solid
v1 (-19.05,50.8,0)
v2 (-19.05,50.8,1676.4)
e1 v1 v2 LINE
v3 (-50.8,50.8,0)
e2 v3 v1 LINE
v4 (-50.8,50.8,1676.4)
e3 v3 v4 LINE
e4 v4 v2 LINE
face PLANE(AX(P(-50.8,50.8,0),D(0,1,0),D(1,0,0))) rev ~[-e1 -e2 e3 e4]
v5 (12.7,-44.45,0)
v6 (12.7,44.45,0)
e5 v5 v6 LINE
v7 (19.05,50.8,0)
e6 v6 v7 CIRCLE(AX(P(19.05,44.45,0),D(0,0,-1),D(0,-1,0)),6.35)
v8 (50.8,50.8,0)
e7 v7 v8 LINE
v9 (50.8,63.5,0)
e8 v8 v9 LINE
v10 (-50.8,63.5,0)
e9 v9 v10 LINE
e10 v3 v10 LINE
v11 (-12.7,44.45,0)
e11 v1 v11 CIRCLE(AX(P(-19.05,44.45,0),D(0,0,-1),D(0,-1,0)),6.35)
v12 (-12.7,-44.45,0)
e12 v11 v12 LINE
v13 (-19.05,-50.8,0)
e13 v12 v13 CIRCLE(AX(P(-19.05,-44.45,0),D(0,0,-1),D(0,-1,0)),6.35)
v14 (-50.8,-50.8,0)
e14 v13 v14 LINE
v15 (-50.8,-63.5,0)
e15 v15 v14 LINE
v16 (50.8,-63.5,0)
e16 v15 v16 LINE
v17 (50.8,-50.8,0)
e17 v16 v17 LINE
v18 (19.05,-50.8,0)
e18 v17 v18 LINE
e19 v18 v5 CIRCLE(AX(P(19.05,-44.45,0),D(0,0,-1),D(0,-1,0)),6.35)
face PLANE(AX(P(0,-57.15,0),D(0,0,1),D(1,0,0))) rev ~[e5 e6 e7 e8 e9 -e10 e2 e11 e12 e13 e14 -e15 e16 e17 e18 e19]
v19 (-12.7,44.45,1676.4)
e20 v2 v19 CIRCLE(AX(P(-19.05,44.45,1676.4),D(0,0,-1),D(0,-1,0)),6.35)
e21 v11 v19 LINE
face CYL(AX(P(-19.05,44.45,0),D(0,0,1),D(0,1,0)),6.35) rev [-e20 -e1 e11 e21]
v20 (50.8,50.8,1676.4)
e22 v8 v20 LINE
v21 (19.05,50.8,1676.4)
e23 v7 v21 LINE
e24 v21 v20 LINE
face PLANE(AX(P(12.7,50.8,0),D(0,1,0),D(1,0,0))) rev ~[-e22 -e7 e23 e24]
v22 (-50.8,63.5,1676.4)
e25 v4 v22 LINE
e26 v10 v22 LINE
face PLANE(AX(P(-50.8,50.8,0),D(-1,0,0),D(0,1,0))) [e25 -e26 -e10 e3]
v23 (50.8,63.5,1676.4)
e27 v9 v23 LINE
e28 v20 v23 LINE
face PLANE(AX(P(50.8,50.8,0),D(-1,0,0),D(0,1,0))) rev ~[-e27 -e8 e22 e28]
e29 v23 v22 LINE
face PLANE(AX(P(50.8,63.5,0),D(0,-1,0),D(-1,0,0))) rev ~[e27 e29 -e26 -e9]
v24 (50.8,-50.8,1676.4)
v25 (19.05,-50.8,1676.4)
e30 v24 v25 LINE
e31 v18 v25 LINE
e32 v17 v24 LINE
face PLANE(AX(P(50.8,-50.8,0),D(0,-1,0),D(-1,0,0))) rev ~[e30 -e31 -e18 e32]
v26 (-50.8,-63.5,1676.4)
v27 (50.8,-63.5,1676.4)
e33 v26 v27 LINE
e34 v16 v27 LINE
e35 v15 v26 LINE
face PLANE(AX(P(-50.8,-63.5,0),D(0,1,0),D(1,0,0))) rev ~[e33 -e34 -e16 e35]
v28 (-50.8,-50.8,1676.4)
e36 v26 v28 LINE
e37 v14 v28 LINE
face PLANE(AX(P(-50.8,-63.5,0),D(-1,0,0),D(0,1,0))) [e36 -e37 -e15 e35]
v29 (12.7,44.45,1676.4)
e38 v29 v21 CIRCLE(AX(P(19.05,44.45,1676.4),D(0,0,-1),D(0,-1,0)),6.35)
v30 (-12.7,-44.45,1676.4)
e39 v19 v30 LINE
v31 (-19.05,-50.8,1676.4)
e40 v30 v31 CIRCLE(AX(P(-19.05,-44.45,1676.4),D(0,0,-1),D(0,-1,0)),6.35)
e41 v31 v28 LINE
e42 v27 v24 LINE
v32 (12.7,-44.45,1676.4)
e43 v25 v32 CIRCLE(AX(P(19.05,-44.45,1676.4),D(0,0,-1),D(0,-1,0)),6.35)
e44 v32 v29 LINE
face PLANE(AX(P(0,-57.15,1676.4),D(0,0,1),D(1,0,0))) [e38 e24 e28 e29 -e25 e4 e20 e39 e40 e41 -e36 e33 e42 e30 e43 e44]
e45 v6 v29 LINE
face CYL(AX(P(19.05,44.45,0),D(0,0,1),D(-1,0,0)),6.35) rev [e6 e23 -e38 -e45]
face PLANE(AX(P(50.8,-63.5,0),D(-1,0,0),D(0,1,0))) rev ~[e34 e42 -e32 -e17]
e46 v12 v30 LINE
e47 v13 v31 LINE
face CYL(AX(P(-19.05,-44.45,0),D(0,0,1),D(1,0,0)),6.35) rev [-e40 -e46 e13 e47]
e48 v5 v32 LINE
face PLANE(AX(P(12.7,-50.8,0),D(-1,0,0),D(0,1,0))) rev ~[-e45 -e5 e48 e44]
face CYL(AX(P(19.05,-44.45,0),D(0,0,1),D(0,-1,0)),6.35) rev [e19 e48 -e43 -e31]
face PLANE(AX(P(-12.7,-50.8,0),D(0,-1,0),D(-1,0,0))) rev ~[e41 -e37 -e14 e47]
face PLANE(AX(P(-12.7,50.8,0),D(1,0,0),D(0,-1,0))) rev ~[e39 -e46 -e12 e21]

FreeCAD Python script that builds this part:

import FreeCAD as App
import Part
import Sketcher
Q = App.Units.Quantity


def edges_at(feature, points):
    """Names of the edges that pass closest to the given points."""
    edges = feature.Shape.Edges
    near = lambda p: min(range(len(edges)), key=lambda i: edges[i].distToShape(Part.Vertex(*p))[0])
    return sorted({f"Edge{near(p) + 1}" for p in points})

doc = App.newDocument("Part")
body = doc.addObject("PartDesign::Body", "Body")

sketch1 = body.newObject("Sketcher::SketchObject", "Sketch")
sketch1.AttachmentSupport = (doc.getObject("XY_Plane"), [""])
sketch1.MapMode = "FlatFace"
sketch1.addGeometry([
    Part.LineSegment(App.Vector(50.8, -63.5, 0), App.Vector(50.8, -50.8, 0)),
    Part.LineSegment(App.Vector(50.8, -50.8, 0), App.Vector(12.7, -50.8, 0)),
    Part.LineSegment(App.Vector(12.7, -50.8, 0), App.Vector(12.7, 50.8, 0)),
    Part.LineSegment(App.Vector(12.7, 50.8, 0), App.Vector(50.8, 50.8, 0)),
    Part.LineSegment(App.Vector(50.8, 50.8, 0), App.Vector(50.8, 63.5, 0)),
    Part.LineSegment(App.Vector(50.8, 63.5, 0), App.Vector(-50.8, 63.5, 0)),
    Part.LineSegment(App.Vector(-50.8, 63.5, 0), App.Vector(-50.8, 50.8, 0)),
    Part.LineSegment(App.Vector(-50.8, 50.8, 0), App.Vector(-12.7, 50.8, 0)),
    Part.LineSegment(App.Vector(-12.7, 50.8, 0), App.Vector(-12.7, -50.8, 0)),
    Part.LineSegment(App.Vector(-12.7, -50.8, 0), App.Vector(-50.8, -50.8, 0)),
    Part.LineSegment(App.Vector(-50.8, -50.8, 0), App.Vector(-50.8, -63.5, 0)),
    Part.LineSegment(App.Vector(-50.8, -63.5, 0), App.Vector(50.8, -63.5, 0)),
], False)
sketch1.addConstraint([
    Sketcher.Constraint("Coincident", 0, 2, 1, 1),
    Sketcher.Constraint("Coincident", 1, 2, 2, 1),
    Sketcher.Constraint("Coincident", 2, 2, 3, 1),
    Sketcher.Constraint("Coincident", 3, 2, 4, 1),
    Sketcher.Constraint("Coincident", 4, 2, 5, 1),
    Sketcher.Constraint("Coincident", 5, 2, 6, 1),
    Sketcher.Constraint("Coincident", 6, 2, 7, 1),
    Sketcher.Constraint("Coincident", 7, 2, 8, 1),
    Sketcher.Constraint("Coincident", 8, 2, 9, 1),
    Sketcher.Constraint("Coincident", 9, 2, 10, 1),
    Sketcher.Constraint("Coincident", 10, 2, 11, 1),
    Sketcher.Constraint("Coincident", 11, 2, 0, 1),
    Sketcher.Constraint("Vertical", 0),
    Sketcher.Constraint("Horizontal", 1),
    Sketcher.Constraint("Vertical", 2),
    Sketcher.Constraint("Horizontal", 3),
    Sketcher.Constraint("Vertical", 4),
    Sketcher.Constraint("Horizontal", 5),
    Sketcher.Constraint("Vertical", 6),
    Sketcher.Constraint("Horizontal", 7),
    Sketcher.Constraint("Vertical", 8),
    Sketcher.Constraint("Horizontal", 9),
    Sketcher.Constraint("Vertical", 10),
    Sketcher.Constraint("Horizontal", 11),
    Sketcher.Constraint("Symmetric", 0, 2, 6, 2, -1, 1),
    Sketcher.Constraint("Symmetric", 2, 2, 8, 2, -1, 1),
    Sketcher.Constraint("Symmetric", 4, 2, 10, 2, -1, 1),
    Sketcher.Constraint("Symmetric", 3, 2, 6, 2, -2),
    Sketcher.Constraint("Equal", 11, 2),
    Sketcher.Constraint("DistanceX", 5, 2, 5, 1, Q("4 in")),
    Sketcher.Constraint("DistanceX", 1, 2, 1, 1, Q("1.5 in")),
    Sketcher.Constraint("DistanceY", 0, 1, 0, 2, Q("0.5 in")),
])
pad1 = body.newObject("PartDesign::Pad", "Pad")
pad1.Profile = sketch1
pad1.Length = Q("66 in")
doc.recompute()

fillet = body.newObject("PartDesign::Fillet", "Fillet")
fillet.Base = (pad1, edges_at(pad1, [
    (-12.7, -50.8, 838.2),
    (12.7, -50.8, 838.2),
    (-12.7, 50.8, 838.2),
    (12.7, 50.8, 838.2),
]))
fillet.Radius = Q("0.25 in")

doc.recompute()
